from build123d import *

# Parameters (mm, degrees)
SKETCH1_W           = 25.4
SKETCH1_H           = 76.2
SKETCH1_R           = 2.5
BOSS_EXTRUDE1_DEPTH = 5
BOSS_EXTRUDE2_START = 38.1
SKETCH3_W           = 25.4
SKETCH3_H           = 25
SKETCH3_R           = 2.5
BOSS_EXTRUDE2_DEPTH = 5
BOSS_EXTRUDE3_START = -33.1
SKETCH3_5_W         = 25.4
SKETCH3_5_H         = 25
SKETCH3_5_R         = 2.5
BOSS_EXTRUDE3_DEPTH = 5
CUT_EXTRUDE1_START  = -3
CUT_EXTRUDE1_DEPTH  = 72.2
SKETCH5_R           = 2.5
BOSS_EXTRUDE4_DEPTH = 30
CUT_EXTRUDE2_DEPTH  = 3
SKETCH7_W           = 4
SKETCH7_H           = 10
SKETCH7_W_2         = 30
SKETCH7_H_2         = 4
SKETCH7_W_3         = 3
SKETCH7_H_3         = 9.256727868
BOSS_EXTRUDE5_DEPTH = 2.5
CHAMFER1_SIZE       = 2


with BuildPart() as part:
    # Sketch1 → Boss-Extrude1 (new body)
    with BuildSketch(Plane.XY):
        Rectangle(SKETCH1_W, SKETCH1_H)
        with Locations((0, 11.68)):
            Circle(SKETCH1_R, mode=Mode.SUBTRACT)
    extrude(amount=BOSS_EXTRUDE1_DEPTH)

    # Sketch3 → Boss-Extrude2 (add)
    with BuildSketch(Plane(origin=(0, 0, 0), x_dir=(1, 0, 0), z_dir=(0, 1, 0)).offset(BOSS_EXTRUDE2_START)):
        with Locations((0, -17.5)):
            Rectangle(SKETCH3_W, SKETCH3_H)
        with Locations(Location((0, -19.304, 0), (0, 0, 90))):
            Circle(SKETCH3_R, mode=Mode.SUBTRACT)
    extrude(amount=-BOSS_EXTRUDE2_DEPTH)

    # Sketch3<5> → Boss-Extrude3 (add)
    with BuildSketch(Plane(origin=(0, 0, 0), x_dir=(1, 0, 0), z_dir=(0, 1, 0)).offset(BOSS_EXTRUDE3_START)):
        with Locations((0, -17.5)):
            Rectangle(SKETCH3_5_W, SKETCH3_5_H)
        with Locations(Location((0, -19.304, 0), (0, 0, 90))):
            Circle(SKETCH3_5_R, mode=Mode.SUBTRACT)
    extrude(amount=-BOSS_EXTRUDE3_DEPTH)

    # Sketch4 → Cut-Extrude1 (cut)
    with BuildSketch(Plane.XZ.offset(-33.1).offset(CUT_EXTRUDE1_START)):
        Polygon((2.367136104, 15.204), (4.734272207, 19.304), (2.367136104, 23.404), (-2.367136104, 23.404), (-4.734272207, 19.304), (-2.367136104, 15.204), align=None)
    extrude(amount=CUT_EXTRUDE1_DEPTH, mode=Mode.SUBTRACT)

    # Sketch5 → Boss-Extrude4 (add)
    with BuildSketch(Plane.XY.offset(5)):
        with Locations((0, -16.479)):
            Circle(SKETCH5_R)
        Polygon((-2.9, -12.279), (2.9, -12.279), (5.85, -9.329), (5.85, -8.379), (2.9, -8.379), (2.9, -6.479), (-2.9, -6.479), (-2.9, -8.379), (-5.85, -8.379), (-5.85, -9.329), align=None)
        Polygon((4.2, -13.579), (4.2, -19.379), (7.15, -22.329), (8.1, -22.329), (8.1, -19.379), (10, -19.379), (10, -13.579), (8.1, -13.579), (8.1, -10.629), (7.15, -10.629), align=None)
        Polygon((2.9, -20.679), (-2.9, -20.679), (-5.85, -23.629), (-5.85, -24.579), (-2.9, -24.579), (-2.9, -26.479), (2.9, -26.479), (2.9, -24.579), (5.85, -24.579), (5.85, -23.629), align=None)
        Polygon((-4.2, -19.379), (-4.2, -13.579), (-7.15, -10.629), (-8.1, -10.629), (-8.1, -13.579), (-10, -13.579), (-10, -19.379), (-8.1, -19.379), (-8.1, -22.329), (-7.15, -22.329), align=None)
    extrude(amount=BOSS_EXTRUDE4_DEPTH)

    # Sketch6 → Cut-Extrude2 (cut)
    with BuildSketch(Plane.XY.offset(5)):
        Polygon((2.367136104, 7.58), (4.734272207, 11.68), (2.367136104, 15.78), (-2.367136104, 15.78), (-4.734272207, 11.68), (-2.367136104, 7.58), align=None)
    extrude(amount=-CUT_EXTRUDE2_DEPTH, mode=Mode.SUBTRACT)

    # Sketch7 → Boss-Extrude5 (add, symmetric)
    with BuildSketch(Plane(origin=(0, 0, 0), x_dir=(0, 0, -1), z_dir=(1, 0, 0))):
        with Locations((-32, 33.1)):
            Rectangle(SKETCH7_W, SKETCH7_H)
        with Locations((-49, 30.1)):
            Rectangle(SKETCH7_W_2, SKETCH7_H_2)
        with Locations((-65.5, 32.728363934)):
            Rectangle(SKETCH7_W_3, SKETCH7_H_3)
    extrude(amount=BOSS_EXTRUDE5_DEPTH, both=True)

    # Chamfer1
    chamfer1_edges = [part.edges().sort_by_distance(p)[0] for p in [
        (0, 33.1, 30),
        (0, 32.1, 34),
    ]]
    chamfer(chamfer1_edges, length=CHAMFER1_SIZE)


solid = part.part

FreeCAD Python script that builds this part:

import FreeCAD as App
import Part
import Sketcher
Q = App.Units.Quantity


def edges_at(feature, points):
    """Names of the edges that pass closest to the given points."""
    edges = feature.Shape.Edges
    near = lambda p: min(range(len(edges)), key=lambda i: edges[i].distToShape(Part.Vertex(*p))[0])
    return sorted({f"Edge{near(p) + 1}" for p in points})


def add_polygon(sketch, points):
    """Adds a closed chain of lines whose ends are joined by coincident constraints."""
    first, n = sketch.GeometryCount, len(points)
    for a, b in zip(points, points[1:] + points[:1]):
        sketch.addGeometry(Part.LineSegment(App.Vector(*a, 0), App.Vector(*b, 0)), False)
    for i in range(n):
        sketch.addConstraint(Sketcher.Constraint("Coincident", first + i, 2, first + (i + 1) % n, 1))

doc = App.newDocument("Part")
params = doc.addObject("Spreadsheet::Sheet", "Params")
for row, (alias, value) in enumerate([
    ("sketch1_diameter", "5 mm"),
    ("sketch1_width", "25.4 mm"),
    ("sketch1_height", "76.2 mm"),
    ("pad1_length", "5 mm"),
    ("sketch2_diameter", "5 mm"),
    ("sketch2_height", "25 mm"),
    ("sketch2_width", "25.4 mm"),
    ("pad2_length", "5 mm"),
    ("sketch3_diameter", "5 mm"),
    ("sketch3_height", "25 mm"),
    ("sketch3_width", "25.4 mm"),
    ("pad3_length", "5 mm"),
    ("pocket1_length", "72.2 mm"),
    ("sketch5_diameter", "5 mm"),
    ("sketch5_width", "5.8 mm"),
    ("sketch5_width2", "1.9 mm"),
    ("sketch5_width3", "2.95 mm"),
    ("pad4_length", "30 mm"),
    ("pocket2_length", "3 mm"),
    ("sketch7_width", "6 mm"),
    ("sketch7_width2", "10 mm"),
    ("sketch7_height", "30 mm"),
    ("sketch7_height2", "3 mm"),
    ("sketch7_height3", "37 mm"),
    ("pad5_length", "5 mm"),
    ("chamfer_size", "2 mm"),
], start=1):
    params.set(f"A{row}", alias)
    params.set(f"B{row}", "=" + value)
    params.setAlias(f"B{row}", alias)

body = doc.addObject("PartDesign::Body", "Body")

# Sketch on XY plane
sketch1 = body.newObject("Sketcher::SketchObject", "Sketch")
sketch1.AttachmentSupport = (doc.getObject("XY_Plane"), [""])
sketch1.MapMode = "FlatFace"
add_polygon(sketch1, [(-12.7, 38.1), (-12.7, -38.1), (12.7, -38.1), (12.7, 38.1)])  # lines 0-3
sketch1.addGeometry(Part.Circle(App.Vector(0, 11.7, 0), App.Vector(0, 0, 1), 2.5), False)  # 4
sketch1.addConstraint([
    Sketcher.Constraint("Vertical", 0),
    Sketcher.Constraint("Horizontal", 1),
    Sketcher.Constraint("Vertical", 2),
    Sketcher.Constraint("Horizontal", 3),
    Sketcher.Constraint("Symmetric", 0, 2, 2, 2, -1, 1),
    Sketcher.Constraint("PointOnObject", 4, 3, -2),
    Sketcher.Constraint("Diameter", 4, Q("5 mm")),
    Sketcher.Constraint("DistanceX", 1, 1, 1, 2, Q("25.4 mm")),
    Sketcher.Constraint("DistanceY", 0, 2, 0, 1, Q("76.2 mm")),
    Sketcher.Constraint("DistanceY", -1, 1, 4, 3, Q("11.68 mm")),
])
sketch1.setExpression("Constraints[10]", "Params.sketch1_diameter")
sketch1.setExpression("Constraints[11]", "Params.sketch1_width")
sketch1.setExpression("Constraints[12]", "Params.sketch1_height")
pad1 = body.newObject("PartDesign::Pad", "Pad")
pad1.Profile = sketch1
pad1.setExpression("Length", "Params.pad1_length")

# Sketch on XZ plane
sketch2 = body.newObject("Sketcher::SketchObject", "Sketch001")
sketch2.AttachmentSupport = (doc.getObject("XZ_Plane"), [""])
sketch2.MapMode = "FlatFace"
sketch2.AttachmentOffset = App.Placement(App.Vector(0, 0, -38.1), App.Rotation())
add_polygon(sketch2, [(-12.7, 5), (-12.7, 30), (12.7, 30), (12.7, 5)])  # lines 0-3
sketch2.addGeometry(Part.Circle(App.Vector(0, 19.3, 0), App.Vector(0, 0, 1), 2.5), False)  # 4
sketch2.addConstraint([
    Sketcher.Constraint("Vertical", 0),
    Sketcher.Constraint("Horizontal", 1),
    Sketcher.Constraint("Vertical", 2),
    Sketcher.Constraint("Horizontal", 3),
    Sketcher.Constraint("PointOnObject", 4, 3, -2),
    Sketcher.Constraint("Diameter", 4, Q("5 mm")),
    Sketcher.Constraint("DistanceY", 0, 1, 0, 2, Q("25 mm")),
    Sketcher.Constraint("DistanceX", 1, 1, 1, 2, Q("25.4 mm")),
    Sketcher.Constraint("DistanceY", -1, 1, 0, 2, Q("30 mm")),
    Sketcher.Constraint("DistanceX", 0, 2, -1, 1, Q("12.7 mm")),
    Sketcher.Constraint("DistanceY", -1, 1, 4, 3, Q("19.304 mm")),
])
sketch2.setExpression("Constraints[9]", "Params.sketch2_diameter")
sketch2.setExpression("Constraints[10]", "Params.sketch2_height")
sketch2.setExpression("Constraints[11]", "Params.sketch2_width")
pad2 = body.newObject("PartDesign::Pad", "Pad001")
pad2.Profile = sketch2
pad2.setExpression("Length", "Params.pad2_length")

# Sketch on XZ plane
sketch3 = body.newObject("Sketcher::SketchObject", "Sketch002")
sketch3.AttachmentSupport = (doc.getObject("XZ_Plane"), [""])
sketch3.MapMode = "FlatFace"
sketch3.AttachmentOffset = App.Placement(App.Vector(0, 0, 33.1), App.Rotation())
add_polygon(sketch3, [(-12.7, 5), (-12.7, 30), (12.7, 30), (12.7, 5)])  # lines 0-3
sketch3.addGeometry(Part.Circle(App.Vector(0, 19.3, 0), App.Vector(0, 0, 1), 2.5), False)  # 4
sketch3.addConstraint([
    Sketcher.Constraint("Vertical", 0),
    Sketcher.Constraint("Horizontal", 1),
    Sketcher.Constraint("Vertical", 2),
    Sketcher.Constraint("Horizontal", 3),
    Sketcher.Constraint("PointOnObject", 4, 3, -2),
    Sketcher.Constraint("Diameter", 4, Q("5 mm")),
    Sketcher.Constraint("DistanceY", 0, 1, 0, 2, Q("25 mm")),
    Sketcher.Constraint("DistanceX", 1, 1, 1, 2, Q("25.4 mm")),
    Sketcher.Constraint("DistanceY", -1, 1, 0, 2, Q("30 mm")),
    Sketcher.Constraint("DistanceX", 0, 2, -1, 1, Q("12.7 mm")),
    Sketcher.Constraint("DistanceY", -1, 1, 4, 3, Q("19.304 mm")),
])
sketch3.setExpression("Constraints[9]", "Params.sketch3_diameter")
sketch3.setExpression("Constraints[10]", "Params.sketch3_height")
sketch3.setExpression("Constraints[11]", "Params.sketch3_width")
pad3 = body.newObject("PartDesign::Pad", "Pad002")
pad3.Profile = sketch3
pad3.setExpression("Length", "Params.pad3_length")

# Sketch on XZ plane
sketch4 = body.newObject("Sketcher::SketchObject", "Sketch003")
sketch4.AttachmentSupport = (doc.getObject("XZ_Plane"), [""])
sketch4.MapMode = "FlatFace"
sketch4.AttachmentOffset = App.Placement(App.Vector(0, 0, -36.1), App.Rotation())
add_polygon(sketch4, [(2.4, 15.2), (4.7, 19.3), (2.4, 23.4), (-2.4, 23.4), (-4.7, 19.3), (-2.4, 15.2)])  # lines 0-5
sketch4.addConstraint([
    Sketcher.Constraint("Horizontal", 2),
    Sketcher.Constraint("Horizontal", 5),
    Sketcher.Constraint("Symmetric", 0, 2, 3, 2, -2),
    Sketcher.Constraint("Parallel", 0, 3),
    Sketcher.Constraint("Parallel", 1, 4),
    Sketcher.Constraint("Vertical", 2, 2, 4, 2),
    Sketcher.Constraint("Vertical", 1, 2, 5, 2),
    Sketcher.Constraint("Angle", 0, Q("60 deg")),
    Sketcher.Constraint("DistanceY", 0, 2, 1, 2, Q("4.1 mm")),
    Sketcher.Constraint("DistanceY", -1, 1, 0, 2, Q("19.304 mm")),
    Sketcher.Constraint("DistanceX", 2, 2, 2, 1, Q("4.734272 mm")),
])
pocket1 = body.newObject("PartDesign::Pocket", "Pocket")
pocket1.Profile = sketch4
pocket1.setExpression("Length", "Params.pocket1_length")
pocket1.Reversed = True

# Sketch on XY plane
sketch5 = body.newObject("Sketcher::SketchObject", "Sketch004")
sketch5.AttachmentSupport = (doc.getObject("XY_Plane"), [""])
sketch5.MapMode = "FlatFace"
sketch5.AttachmentOffset = App.Placement(App.Vector(0, 0, 5), App.Rotation())
sketch5.addGeometry(Part.Circle(App.Vector(0, -16.5, 0), App.Vector(0, 0, 1), 2.5), False)  # 0
add_polygon(sketch5, [(-2.9, -12.3), (2.9, -12.3), (5.8, -9.3), (5.8, -8.4), (2.9, -8.4), (2.9, -6.5), (-2.9, -6.5), (-2.9, -8.4), (-5.8, -8.4), (-5.8, -9.3)])  # lines 1-10
add_polygon(sketch5, [(4.2, -13.6), (4.2, -19.4), (7.2, -22.3), (8.1, -22.3), (8.1, -19.4), (10, -19.4), (10, -13.6), (8.1, -13.6), (8.1, -10.6), (7.2, -10.6)])  # lines 11-20
add_polygon(sketch5, [(2.9, -20.7), (-2.9, -20.7), (-5.8, -23.6), (-5.8, -24.6), (-2.9, -24.6), (-2.9, -26.5), (2.9, -26.5), (2.9, -24.6), (5.8, -24.6), (5.8, -23.6)])  # lines 21-30
add_polygon(sketch5, [(-4.2, -19.4), (-4.2, -13.6), (-7.2, -10.6), (-8.1, -10.6), (-8.1, -13.6), (-10, -13.6), (-10, -19.4), (-8.1, -19.4), (-8.1, -22.3), (-7.2, -22.3)])  # lines 31-40
sketch5.addConstraint([
    Sketcher.Constraint("Horizontal", 1),
    Sketcher.Constraint("Vertical", 3),
    Sketcher.Constraint("Horizontal", 4),
    Sketcher.Constraint("Vertical", 5),
    Sketcher.Constraint("Horizontal", 6),
    Sketcher.Constraint("Vertical", 7),
    Sketcher.Constraint("Horizontal", 8),
    Sketcher.Constraint("Vertical", 9),
    Sketcher.Constraint("Vertical", 11),
    Sketcher.Constraint("Horizontal", 13),
    Sketcher.Constraint("Vertical", 14),
    Sketcher.Constraint("Horizontal", 15),
    Sketcher.Constraint("Vertical", 16),
    Sketcher.Constraint("Horizontal", 17),
    Sketcher.Constraint("Vertical", 18),
    Sketcher.Constraint("Horizontal", 19),
    Sketcher.Constraint("Horizontal", 21),
    Sketcher.Constraint("Vertical", 23),
    Sketcher.Constraint("Horizontal", 24),
    Sketcher.Constraint("Vertical", 25),
    Sketcher.Constraint("Horizontal", 26),
    Sketcher.Constraint("Vertical", 27),
    Sketcher.Constraint("Horizontal", 28),
    Sketcher.Constraint("Vertical", 29),
    Sketcher.Constraint("Vertical", 31),
    Sketcher.Constraint("Horizontal", 33),
    Sketcher.Constraint("Vertical", 34),
    Sketcher.Constraint("Horizontal", 35),
    Sketcher.Constraint("Vertical", 36),
    Sketcher.Constraint("Horizontal", 37),
    Sketcher.Constraint("Vertical", 38),
    Sketcher.Constraint("Horizontal", 39),
    Sketcher.Constraint("Symmetric", 4, 2, 7, 2, -2),
    Sketcher.Constraint("Symmetric", 2, 2, 9, 2, -2),
    Sketcher.Constraint("Symmetric", 24, 2, 27, 2, -2),
    Sketcher.Constraint("Symmetric", 22, 2, 29, 2, -2),
    Sketcher.Constraint("Symmetric", 20, 2, 31, 2, -2),
    Sketcher.Constraint("Symmetric", 19, 2, 32, 2, -2),
    Sketcher.Constraint("Symmetric", 17, 2, 34, 2, -2),
    Sketcher.Constraint("Symmetric", 15, 2, 36, 2, -2),
    Sketcher.Constraint("Symmetric", 13, 2, 38, 2, -2),
    Sketcher.Constraint("PointOnObject", 0, 3, -2),
    Sketcher.Constraint("Perpendicular", 2, 10),
    Sketcher.Constraint("Parallel", 10, 12),
    Sketcher.Constraint("Perpendicular", 12, 20),
    Sketcher.Constraint("Parallel", 20, 22),
    Sketcher.Constraint("Perpendicular", 22, 30),
    Sketcher.Constraint("Parallel", 30, 32),
    Sketcher.Constraint("Perpendicular", 32, 40),
    Sketcher.Constraint("Horizontal", 11, 2, 14, 2),
    Sketcher.Constraint("Horizontal", 17, 2, 20, 2),
    Sketcher.Constraint("Horizontal", 37, 2, 40, 2),
    Sketcher.Constraint("Vertical", 1, 2, 4, 2),
    Sketcher.Constraint("Vertical", 14, 2, 17, 2),
    Sketcher.Constraint("Vertical", 12, 2, 19, 2),
    Sketcher.Constraint("Vertical", 10, 2, 21, 2),
    Sketcher.Constraint("Vertical", 9, 2, 22, 2),
    Sketcher.Constraint("Vertical", 21, 2, 24, 2),
    Sketcher.Constraint("Equal", 39, 3),
    Sketcher.Constraint("Equal", 37, 5),
    Sketcher.Constraint("Equal", 26, 11),
    Sketcher.Constraint("Equal", 28, 14),
    Sketcher.Constraint("Equal", 9, 23),
    Sketcher.Constraint("Equal", 7, 25),
    Sketcher.Constraint("Diameter", 0, Q("5 mm")),
    Sketcher.Constraint("DistanceX", 1, 1, 1, 2, Q("5.8 mm")),
    Sketcher.Constraint("DistanceX", 15, 1, 15, 2, Q("1.9 mm")),
    Sketcher.Constraint("DistanceX", -1, 1, 15, 2, Q("10 mm")),
    Sketcher.Constraint("DistanceY", 0, 3, 5, 2, Q("10 mm")),
    Sketcher.Constraint("DistanceY", 11, 2, 4, 2, Q("11 mm")),
    Sketcher.Constraint("DistanceY", 12, 2, 2, 2, Q("13 mm")),
    Sketcher.Constraint("DistanceX", 4, 2, 4, 1, Q("2.95 mm")),
    Sketcher.Constraint("DistanceY", 21, 2, 0, 3, Q("4.2 mm")),
    Sketcher.Constraint("DistanceY", 0, 3, -1, 1, Q("16.479 mm")),
])
sketch5.setExpression("Constraints[104]", "Params.sketch5_diameter")
sketch5.setExpression("Constraints[105]", "Params.sketch5_width")
sketch5.setExpression("Constraints[106]", "Params.sketch5_width2")
sketch5.setExpression("Constraints[111]", "Params.sketch5_width3")
pad4 = body.newObject("PartDesign::Pad", "Pad003")
pad4.Profile = sketch5
pad4.setExpression("Length", "Params.pad4_length")

# Sketch on XY plane
sketch6 = body.newObject("Sketcher::SketchObject", "Sketch005")
sketch6.AttachmentSupport = (doc.getObject("XY_Plane"), [""])
sketch6.MapMode = "FlatFace"
sketch6.AttachmentOffset = App.Placement(App.Vector(0, 0, 5), App.Rotation())
add_polygon(sketch6, [(2.4, 7.6), (4.7, 11.7), (2.4, 15.8), (-2.4, 15.8), (-4.7, 11.7), (-2.4, 7.6)])  # lines 0-5
sketch6.addConstraint([
    Sketcher.Constraint("Horizontal", 2),
    Sketcher.Constraint("Horizontal", 5),
    Sketcher.Constraint("Symmetric", 0, 2, 3, 2, -2),
    Sketcher.Constraint("Parallel", 0, 3),
    Sketcher.Constraint("Parallel", 1, 4),
    Sketcher.Constraint("Vertical", 2, 2, 4, 2),
    Sketcher.Constraint("Vertical", 1, 2, 5, 2),
    Sketcher.Constraint("Angle", 0, Q("60 deg")),
    Sketcher.Constraint("DistanceY", 0, 2, 1, 2, Q("4.1 mm")),
    Sketcher.Constraint("DistanceY", -1, 1, 0, 2, Q("11.68 mm")),
    Sketcher.Constraint("DistanceX", 2, 2, 2, 1, Q("4.734272 mm")),
])
pocket2 = body.newObject("PartDesign::Pocket", "Pocket001")
pocket2.Profile = sketch6
pocket2.setExpression("Length", "Params.pocket2_length")

# Sketch on YZ plane
sketch7 = body.newObject("Sketcher::SketchObject", "Sketch006")
sketch7.AttachmentSupport = (doc.getObject("YZ_Plane"), [""])
sketch7.MapMode = "FlatFace"
add_polygon(sketch7, [(38.1, 34), (32.1, 34), (32.1, 64), (37.4, 64), (37.4, 67), (28.1, 67), (28.1, 30), (38.1, 30)])  # lines 0-7
sketch7.addConstraint([
    Sketcher.Constraint("Horizontal", 0),
    Sketcher.Constraint("Vertical", 1),
    Sketcher.Constraint("Horizontal", 2),
    Sketcher.Constraint("Vertical", 3),
    Sketcher.Constraint("Horizontal", 4),
    Sketcher.Constraint("Vertical", 5),
    Sketcher.Constraint("Horizontal", 6),
    Sketcher.Constraint("Vertical", 7),
    Sketcher.Constraint("DistanceX", 0, 2, 0, 1, Q("6 mm")),
    Sketcher.Constraint("DistanceX", 6, 1, 6, 2, Q("10 mm")),
    Sketcher.Constraint("DistanceY", 1, 1, 1, 2, Q("30 mm")),
    Sketcher.Constraint("DistanceY", 3, 1, 3, 2, Q("3 mm")),
    Sketcher.Constraint("DistanceY", 5, 2, 5, 1, Q("37 mm")),
    Sketcher.Constraint("DistanceY", -1, 1, 0, 2, Q("34 mm")),
    Sketcher.Constraint("DistanceX", -1, 1, 0, 2, Q("32.1 mm")),
    Sketcher.Constraint("DistanceX", 2, 1, 2, 2, Q("5.256728 mm")),
])
sketch7.setExpression("Constraints[16]", "Params.sketch7_width")
sketch7.setExpression("Constraints[17]", "Params.sketch7_width2")
sketch7.setExpression("Constraints[18]", "Params.sketch7_height")
sketch7.setExpression("Constraints[19]", "Params.sketch7_height2")
sketch7.setExpression("Constraints[20]", "Params.sketch7_height3")
pad5 = body.newObject("PartDesign::Pad", "Pad004")
pad5.Profile = sketch7
pad5.setExpression("Length", "Params.pad5_length")
pad5.Midplane = True
doc.recompute()

chamfer = body.newObject("PartDesign::Chamfer", "Chamfer")
chamfer.Base = (pad5, edges_at(pad5, [(0, 33.1, 30), (0, 32.1, 34)]))
chamfer.setExpression("Size", "Params.chamfer_size")

doc.recompute()
